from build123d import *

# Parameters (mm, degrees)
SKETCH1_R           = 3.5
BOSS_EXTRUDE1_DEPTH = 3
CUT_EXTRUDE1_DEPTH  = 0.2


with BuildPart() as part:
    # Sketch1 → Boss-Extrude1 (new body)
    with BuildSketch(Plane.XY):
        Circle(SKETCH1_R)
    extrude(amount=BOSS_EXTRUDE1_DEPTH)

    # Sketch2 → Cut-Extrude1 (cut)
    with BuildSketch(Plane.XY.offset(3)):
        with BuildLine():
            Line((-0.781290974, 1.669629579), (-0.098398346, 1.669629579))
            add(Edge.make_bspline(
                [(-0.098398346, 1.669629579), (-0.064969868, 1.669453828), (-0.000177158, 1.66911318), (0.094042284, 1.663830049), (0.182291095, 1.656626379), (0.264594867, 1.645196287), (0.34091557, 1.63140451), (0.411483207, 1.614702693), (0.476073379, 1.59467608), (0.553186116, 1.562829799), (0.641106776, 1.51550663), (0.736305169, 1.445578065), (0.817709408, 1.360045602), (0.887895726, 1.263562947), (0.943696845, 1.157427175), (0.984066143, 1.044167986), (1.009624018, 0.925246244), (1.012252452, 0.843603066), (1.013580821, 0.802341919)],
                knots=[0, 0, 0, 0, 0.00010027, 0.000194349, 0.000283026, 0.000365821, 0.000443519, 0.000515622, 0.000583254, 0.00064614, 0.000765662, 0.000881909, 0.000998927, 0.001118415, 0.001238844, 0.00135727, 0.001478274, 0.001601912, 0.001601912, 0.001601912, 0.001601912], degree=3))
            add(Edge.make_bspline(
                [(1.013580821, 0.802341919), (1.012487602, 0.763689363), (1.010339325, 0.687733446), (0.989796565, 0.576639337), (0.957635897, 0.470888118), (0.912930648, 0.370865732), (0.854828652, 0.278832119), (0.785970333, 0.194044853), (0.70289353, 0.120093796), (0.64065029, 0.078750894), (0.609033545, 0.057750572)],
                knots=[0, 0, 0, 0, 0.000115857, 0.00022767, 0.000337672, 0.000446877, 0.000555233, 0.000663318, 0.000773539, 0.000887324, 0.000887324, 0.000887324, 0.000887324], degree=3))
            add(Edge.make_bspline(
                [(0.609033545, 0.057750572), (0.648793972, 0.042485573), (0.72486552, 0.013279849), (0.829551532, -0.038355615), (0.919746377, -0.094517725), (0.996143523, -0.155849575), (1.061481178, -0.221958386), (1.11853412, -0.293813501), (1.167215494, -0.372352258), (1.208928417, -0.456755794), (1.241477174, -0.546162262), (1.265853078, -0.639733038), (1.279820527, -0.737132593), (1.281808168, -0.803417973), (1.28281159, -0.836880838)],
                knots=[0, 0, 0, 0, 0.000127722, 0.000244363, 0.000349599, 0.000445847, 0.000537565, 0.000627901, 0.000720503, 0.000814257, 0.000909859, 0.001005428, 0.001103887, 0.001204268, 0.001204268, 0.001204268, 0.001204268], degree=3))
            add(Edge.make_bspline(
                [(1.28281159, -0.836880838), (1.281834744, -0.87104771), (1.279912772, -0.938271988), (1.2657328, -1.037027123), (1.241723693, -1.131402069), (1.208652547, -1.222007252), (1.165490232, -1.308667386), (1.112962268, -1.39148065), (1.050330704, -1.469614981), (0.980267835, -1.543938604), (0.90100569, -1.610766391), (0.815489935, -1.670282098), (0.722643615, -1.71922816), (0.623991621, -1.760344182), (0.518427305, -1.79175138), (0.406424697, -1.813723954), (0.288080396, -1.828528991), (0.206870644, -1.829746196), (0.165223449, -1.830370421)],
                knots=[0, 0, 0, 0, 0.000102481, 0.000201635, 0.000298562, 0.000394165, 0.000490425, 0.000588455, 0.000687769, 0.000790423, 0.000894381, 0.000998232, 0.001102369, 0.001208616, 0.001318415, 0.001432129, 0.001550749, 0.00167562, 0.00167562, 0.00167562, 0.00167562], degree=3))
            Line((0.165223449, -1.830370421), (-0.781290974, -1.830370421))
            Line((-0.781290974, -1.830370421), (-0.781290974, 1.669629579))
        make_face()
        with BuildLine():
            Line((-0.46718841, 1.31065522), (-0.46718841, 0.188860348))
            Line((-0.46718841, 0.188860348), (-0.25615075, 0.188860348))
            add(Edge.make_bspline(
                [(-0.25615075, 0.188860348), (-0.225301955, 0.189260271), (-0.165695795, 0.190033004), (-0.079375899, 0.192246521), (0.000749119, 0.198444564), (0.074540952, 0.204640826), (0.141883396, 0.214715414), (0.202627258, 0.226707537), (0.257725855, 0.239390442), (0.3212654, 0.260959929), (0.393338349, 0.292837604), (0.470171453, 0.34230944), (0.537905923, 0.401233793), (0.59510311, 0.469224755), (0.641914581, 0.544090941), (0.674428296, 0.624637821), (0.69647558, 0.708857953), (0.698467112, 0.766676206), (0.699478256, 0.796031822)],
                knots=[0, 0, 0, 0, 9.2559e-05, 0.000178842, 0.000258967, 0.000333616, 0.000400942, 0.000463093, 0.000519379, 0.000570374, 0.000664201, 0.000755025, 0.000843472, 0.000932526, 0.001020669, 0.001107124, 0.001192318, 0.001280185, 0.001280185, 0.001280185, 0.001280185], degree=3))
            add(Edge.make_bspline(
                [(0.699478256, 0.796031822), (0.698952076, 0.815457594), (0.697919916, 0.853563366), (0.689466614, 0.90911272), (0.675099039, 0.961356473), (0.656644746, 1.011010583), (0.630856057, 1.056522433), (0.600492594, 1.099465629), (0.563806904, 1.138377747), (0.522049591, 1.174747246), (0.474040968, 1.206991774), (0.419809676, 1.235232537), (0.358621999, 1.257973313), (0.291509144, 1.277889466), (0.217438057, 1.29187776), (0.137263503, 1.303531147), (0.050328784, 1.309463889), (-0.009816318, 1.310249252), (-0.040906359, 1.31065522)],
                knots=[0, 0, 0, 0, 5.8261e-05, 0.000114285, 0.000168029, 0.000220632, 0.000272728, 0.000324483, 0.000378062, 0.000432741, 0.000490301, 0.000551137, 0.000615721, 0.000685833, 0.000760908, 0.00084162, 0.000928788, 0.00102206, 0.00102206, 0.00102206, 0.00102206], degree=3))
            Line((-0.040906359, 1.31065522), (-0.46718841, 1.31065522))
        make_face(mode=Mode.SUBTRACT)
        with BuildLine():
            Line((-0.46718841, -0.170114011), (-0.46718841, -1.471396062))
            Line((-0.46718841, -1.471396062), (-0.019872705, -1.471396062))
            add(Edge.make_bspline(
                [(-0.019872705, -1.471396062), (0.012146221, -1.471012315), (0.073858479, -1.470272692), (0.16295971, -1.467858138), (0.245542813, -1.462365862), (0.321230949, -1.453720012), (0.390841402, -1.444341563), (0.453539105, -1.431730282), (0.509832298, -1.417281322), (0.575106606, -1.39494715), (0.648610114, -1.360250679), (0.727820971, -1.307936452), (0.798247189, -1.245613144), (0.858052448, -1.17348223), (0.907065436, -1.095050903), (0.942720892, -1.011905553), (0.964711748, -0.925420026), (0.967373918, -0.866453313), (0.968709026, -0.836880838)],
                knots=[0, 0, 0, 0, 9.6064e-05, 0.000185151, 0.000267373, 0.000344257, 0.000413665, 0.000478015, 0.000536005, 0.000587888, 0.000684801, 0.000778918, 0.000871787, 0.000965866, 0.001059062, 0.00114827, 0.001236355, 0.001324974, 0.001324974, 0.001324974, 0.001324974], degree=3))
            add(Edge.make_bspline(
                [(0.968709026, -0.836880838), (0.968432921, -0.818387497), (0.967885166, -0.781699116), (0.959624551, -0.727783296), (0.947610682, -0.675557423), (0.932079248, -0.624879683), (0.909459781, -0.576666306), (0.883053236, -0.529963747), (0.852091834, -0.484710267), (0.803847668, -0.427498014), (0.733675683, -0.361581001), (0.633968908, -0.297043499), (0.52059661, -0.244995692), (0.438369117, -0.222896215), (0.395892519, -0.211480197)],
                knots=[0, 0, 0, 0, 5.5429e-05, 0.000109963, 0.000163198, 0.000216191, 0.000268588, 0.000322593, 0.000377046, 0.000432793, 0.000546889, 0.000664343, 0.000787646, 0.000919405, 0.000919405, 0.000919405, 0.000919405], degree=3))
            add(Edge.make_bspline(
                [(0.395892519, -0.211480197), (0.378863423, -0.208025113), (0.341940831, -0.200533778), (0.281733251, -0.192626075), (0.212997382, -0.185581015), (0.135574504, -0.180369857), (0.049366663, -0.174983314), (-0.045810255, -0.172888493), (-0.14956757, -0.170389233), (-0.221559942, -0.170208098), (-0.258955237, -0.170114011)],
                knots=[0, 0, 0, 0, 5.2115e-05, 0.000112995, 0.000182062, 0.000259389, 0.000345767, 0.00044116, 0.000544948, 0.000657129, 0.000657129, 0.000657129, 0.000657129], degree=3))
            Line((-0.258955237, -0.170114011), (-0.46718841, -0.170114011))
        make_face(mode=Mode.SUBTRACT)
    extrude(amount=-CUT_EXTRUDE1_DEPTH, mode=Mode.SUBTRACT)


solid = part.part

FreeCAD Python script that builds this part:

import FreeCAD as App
import Part
import Sketcher
from FreeCAD import Vector
Q = App.Units.Quantity

doc = App.newDocument("Part")
body = doc.addObject("PartDesign::Body", "Body")

# Sketch on XY plane
sketch1 = body.newObject("Sketcher::SketchObject", "Sketch")
sketch1.AttachmentSupport = (doc.getObject("XY_Plane"), [""])
sketch1.MapMode = "FlatFace"
sketch1.addGeometry(Part.Circle(Vector(0, 0, 0), Vector(0, 0, 1), 3.5), False)
sketch1.addConstraint(Sketcher.Constraint("Coincident", 0, 3, -1, 1))
sketch1.addConstraint(Sketcher.Constraint("Diameter", 0, Q("7 mm")))
pad1 = body.newObject("PartDesign::Pad", "Pad")
pad1.Profile = sketch1
pad1.Length = 3

# Sketch on XY plane
sketch2 = body.newObject("Sketcher::SketchObject", "Sketch001")
sketch2.AttachmentSupport = (doc.getObject("XY_Plane"), [""])
sketch2.MapMode = "FlatFace"
sketch2.AttachmentOffset = App.Placement(Vector(0, 0, 3), App.Rotation())
sketch2.addGeometry(Part.LineSegment(Vector(-0.098398, 1.66963, 0), Vector(-0.781291, 1.66963, 0)), False)
sketch2.addGeometry(Part.LineSegment(Vector(-0.781291, 1.66963, 0), Vector(-0.781291, -1.83037, 0)), False)
sketch2.addGeometry(Part.LineSegment(Vector(-0.781291, -1.83037, 0), Vector(0.165223, -1.83037, 0)), False)
sketch2.addGeometry(Part.BSplineCurve([Vector(1.282812, -0.836881, 0), Vector(1.281835, -0.871048, 0), Vector(1.279913, -0.938272, 0), Vector(1.265733, -1.037027, 0), Vector(1.241724, -1.131402, 0), Vector(1.208653, -1.222007, 0), Vector(1.16549, -1.308667, 0), Vector(1.112962, -1.391481, 0), Vector(1.050331, -1.469615, 0), Vector(0.980268, -1.543939, 0), Vector(0.901006, -1.610766, 0), Vector(0.81549, -1.670282, 0), Vector(0.722644, -1.719228, 0), Vector(0.623992, -1.760344, 0), Vector(0.518427, -1.791751, 0), Vector(0.406425, -1.813724, 0), Vector(0.28808, -1.828529, 0), Vector(0.206871, -1.829746, 0), Vector(0.165223, -1.83037, 0)], [4, 1, 1, 1, 1, 1, 1, 1, 1, 1, 1, 1, 1, 1, 1, 1, 4], [0, 0.000102481, 0.000201635, 0.000298562, 0.000394165, 0.000490425, 0.000588455, 0.000687769, 0.000790423, 0.000894381, 0.000998232, 0.001102369, 0.001208616, 0.001318415, 0.001432129, 0.001550749, 0.00167562], False, 3, [1, 1, 1, 1, 1, 1, 1, 1, 1, 1, 1, 1, 1, 1, 1, 1, 1, 1, 1], False), False)
sketch2.addGeometry(Part.BSplineCurve([Vector(0.609034, 0.057751, 0), Vector(0.648794, 0.042486, 0), Vector(0.724866, 0.01328, 0), Vector(0.829552, -0.038356, 0), Vector(0.919746, -0.094518, 0), Vector(0.996144, -0.15585, 0), Vector(1.061481, -0.221958, 0), Vector(1.118534, -0.293814, 0), Vector(1.167215, -0.372352, 0), Vector(1.208928, -0.456756, 0), Vector(1.241477, -0.546162, 0), Vector(1.265853, -0.639733, 0), Vector(1.279821, -0.737133, 0), Vector(1.281808, -0.803418, 0), Vector(1.282812, -0.836881, 0)], [4, 1, 1, 1, 1, 1, 1, 1, 1, 1, 1, 1, 4], [0, 0.000127722, 0.000244363, 0.000349599, 0.000445847, 0.000537565, 0.000627901, 0.000720503, 0.000814257, 0.000909859, 0.001005428, 0.001103887, 0.001204268], False, 3, [1, 1, 1, 1, 1, 1, 1, 1, 1, 1, 1, 1, 1, 1, 1], False), False)
sketch2.addGeometry(Part.BSplineCurve([Vector(1.013581, 0.802342, 0), Vector(1.012488, 0.763689, 0), Vector(1.010339, 0.687733, 0), Vector(0.989797, 0.576639, 0), Vector(0.957636, 0.470888, 0), Vector(0.912931, 0.370866, 0), Vector(0.854829, 0.278832, 0), Vector(0.78597, 0.194045, 0), Vector(0.702894, 0.120094, 0), Vector(0.64065, 0.078751, 0), Vector(0.609034, 0.057751, 0)], [4, 1, 1, 1, 1, 1, 1, 1, 4], [0, 0.000115857, 0.00022767, 0.000337672, 0.000446877, 0.000555233, 0.000663318, 0.000773539, 0.000887324], False, 3, [1, 1, 1, 1, 1, 1, 1, 1, 1, 1, 1], False), False)
sketch2.addGeometry(Part.BSplineCurve([Vector(-0.098398, 1.66963, 0), Vector(-0.06497, 1.669454, 0), Vector(-0.000177, 1.669113, 0), Vector(0.094042, 1.66383, 0), Vector(0.182291, 1.656626, 0), Vector(0.264595, 1.645196, 0), Vector(0.340916, 1.631405, 0), Vector(0.411483, 1.614703, 0), Vector(0.476073, 1.594676, 0), Vector(0.553186, 1.56283, 0), Vector(0.641107, 1.515507, 0), Vector(0.736305, 1.445578, 0), Vector(0.817709, 1.360046, 0), Vector(0.887896, 1.263563, 0), Vector(0.943697, 1.157427, 0), Vector(0.984066, 1.044168, 0), Vector(1.009624, 0.925246, 0), Vector(1.012252, 0.843603, 0), Vector(1.013581, 0.802342, 0)], [4, 1, 1, 1, 1, 1, 1, 1, 1, 1, 1, 1, 1, 1, 1, 1, 4], [0, 0.00010027, 0.000194349, 0.000283026, 0.000365821, 0.000443519, 0.000515622, 0.000583254, 0.00064614, 0.000765662, 0.000881909, 0.000998927, 0.001118415, 0.001238844, 0.00135727, 0.001478274, 0.001601912], False, 3, [1, 1, 1, 1, 1, 1, 1, 1, 1, 1, 1, 1, 1, 1, 1, 1, 1, 1, 1], False), False)
sketch2.addGeometry(Part.LineSegment(Vector(-0.467188, -0.170114, 0), Vector(-0.258955, -0.170114, 0)), False)
sketch2.addGeometry(Part.BSplineCurve([Vector(0.395893, -0.21148, 0), Vector(0.378863, -0.208025, 0), Vector(0.341941, -0.200534, 0), Vector(0.281733, -0.192626, 0), Vector(0.212997, -0.185581, 0), Vector(0.135575, -0.18037, 0), Vector(0.049367, -0.174983, 0), Vector(-0.04581, -0.172888, 0), Vector(-0.149568, -0.170389, 0), Vector(-0.22156, -0.170208, 0), Vector(-0.258955, -0.170114, 0)], [4, 1, 1, 1, 1, 1, 1, 1, 4], [0, 0.000052115, 0.000112995, 0.000182062, 0.000259389, 0.000345767, 0.00044116, 0.000544948, 0.000657129], False, 3, [1, 1, 1, 1, 1, 1, 1, 1, 1, 1, 1], False), False)
sketch2.addGeometry(Part.BSplineCurve([Vector(0.968709, -0.836881, 0), Vector(0.968433, -0.818387, 0), Vector(0.967885, -0.781699, 0), Vector(0.959625, -0.727783, 0), Vector(0.947611, -0.675557, 0), Vector(0.932079, -0.62488, 0), Vector(0.90946, -0.576666, 0), Vector(0.883053, -0.529964, 0), Vector(0.852092, -0.48471, 0), Vector(0.803848, -0.427498, 0), Vector(0.733676, -0.361581, 0), Vector(0.633969, -0.297043, 0), Vector(0.520597, -0.244996, 0), Vector(0.438369, -0.222896, 0), Vector(0.395893, -0.21148, 0)], [4, 1, 1, 1, 1, 1, 1, 1, 1, 1, 1, 1, 4], [0, 0.000055429, 0.000109963, 0.000163198, 0.000216191, 0.000268588, 0.000322593, 0.000377046, 0.000432793, 0.000546889, 0.000664343, 0.000787646, 0.000919405], False, 3, [1, 1, 1, 1, 1, 1, 1, 1, 1, 1, 1, 1, 1, 1, 1], False), False)
sketch2.addGeometry(Part.BSplineCurve([Vector(-0.019873, -1.471396, 0), Vector(0.012146, -1.471012, 0), Vector(0.073858, -1.470273, 0), Vector(0.16296, -1.467858, 0), Vector(0.245543, -1.462366, 0), Vector(0.321231, -1.45372, 0), Vector(0.390841, -1.444342, 0), Vector(0.453539, -1.43173, 0), Vector(0.509832, -1.417281, 0), Vector(0.575107, -1.394947, 0), Vector(0.64861, -1.360251, 0), Vector(0.727821, -1.307936, 0), Vector(0.798247, -1.245613, 0), Vector(0.858052, -1.173482, 0), Vector(0.907065, -1.095051, 0), Vector(0.942721, -1.011906, 0), Vector(0.964712, -0.92542, 0), Vector(0.967374, -0.866453, 0), Vector(0.968709, -0.836881, 0)], [4, 1, 1, 1, 1, 1, 1, 1, 1, 1, 1, 1, 1, 1, 1, 1, 4], [0, 0.000096064, 0.000185151, 0.000267373, 0.000344257, 0.000413665, 0.000478015, 0.000536005, 0.000587888, 0.000684801, 0.000778918, 0.000871787, 0.000965866, 0.001059062, 0.00114827, 0.001236355, 0.001324974], False, 3, [1, 1, 1, 1, 1, 1, 1, 1, 1, 1, 1, 1, 1, 1, 1, 1, 1, 1, 1], False), False)
sketch2.addGeometry(Part.LineSegment(Vector(-0.019873, -1.471396, 0), Vector(-0.467188, -1.471396, 0)), False)
sketch2.addGeometry(Part.LineSegment(Vector(-0.467188, -1.471396, 0), Vector(-0.467188, -0.170114, 0)), False)
sketch2.addGeometry(Part.LineSegment(Vector(-0.467188, 1.310655, 0), Vector(-0.040906, 1.310655, 0)), False)
sketch2.addGeometry(Part.BSplineCurve([Vector(0.699478, 0.796032, 0), Vector(0.698952, 0.815458, 0), Vector(0.69792, 0.853563, 0), Vector(0.689467, 0.909113, 0), Vector(0.675099, 0.961356, 0), Vector(0.656645, 1.011011, 0), Vector(0.630856, 1.056522, 0), Vector(0.600493, 1.099466, 0), Vector(0.563807, 1.138378, 0), Vector(0.52205, 1.174747, 0), Vector(0.474041, 1.206992, 0), Vector(0.41981, 1.235233, 0), Vector(0.358622, 1.257973, 0), Vector(0.291509, 1.277889, 0), Vector(0.217438, 1.291878, 0), Vector(0.137264, 1.303531, 0), Vector(0.050329, 1.309464, 0), Vector(-0.009816, 1.310249, 0), Vector(-0.040906, 1.310655, 0)], [4, 1, 1, 1, 1, 1, 1, 1, 1, 1, 1, 1, 1, 1, 1, 1, 4], [0, 0.000058261, 0.000114285, 0.000168029, 0.000220632, 0.000272728, 0.000324483, 0.000378062, 0.000432741, 0.000490301, 0.000551137, 0.000615721, 0.000685833, 0.000760908, 0.00084162, 0.000928788, 0.00102206], False, 3, [1, 1, 1, 1, 1, 1, 1, 1, 1, 1, 1, 1, 1, 1, 1, 1, 1, 1, 1], False), False)
sketch2.addGeometry(Part.BSplineCurve([Vector(-0.256151, 0.18886, 0), Vector(-0.225302, 0.18926, 0), Vector(-0.165696, 0.190033, 0), Vector(-0.079376, 0.192247, 0), Vector(0.000749, 0.198445, 0), Vector(0.074541, 0.204641, 0), Vector(0.141883, 0.214715, 0), Vector(0.202627, 0.226708, 0), Vector(0.257726, 0.23939, 0), Vector(0.321265, 0.26096, 0), Vector(0.393338, 0.292838, 0), Vector(0.470171, 0.342309, 0), Vector(0.537906, 0.401234, 0), Vector(0.595103, 0.469225, 0), Vector(0.641915, 0.544091, 0), Vector(0.674428, 0.624638, 0), Vector(0.696476, 0.708858, 0), Vector(0.698467, 0.766676, 0), Vector(0.699478, 0.796032, 0)], [4, 1, 1, 1, 1, 1, 1, 1, 1, 1, 1, 1, 1, 1, 1, 1, 4], [0, 0.000092559, 0.000178842, 0.000258967, 0.000333616, 0.000400942, 0.000463093, 0.000519379, 0.000570374, 0.000664201, 0.000755025, 0.000843472, 0.000932526, 0.001020669, 0.001107124, 0.001192318, 0.001280185], False, 3, [1, 1, 1, 1, 1, 1, 1, 1, 1, 1, 1, 1, 1, 1, 1, 1, 1, 1, 1], False), False)
sketch2.addGeometry(Part.LineSegment(Vector(-0.256151, 0.18886, 0), Vector(-0.467188, 0.18886, 0)), False)
sketch2.addGeometry(Part.LineSegment(Vector(-0.467188, 0.18886, 0), Vector(-0.467188, 1.310655, 0)), False)
sketch2.addConstraint(Sketcher.Constraint("Block", 3))
sketch2.addConstraint(Sketcher.Constraint("Block", 4))
sketch2.addConstraint(Sketcher.Constraint("Block", 5))
sketch2.addConstraint(Sketcher.Constraint("Block", 6))
sketch2.addConstraint(Sketcher.Constraint("Block", 8))
sketch2.addConstraint(Sketcher.Constraint("Block", 9))
sketch2.addConstraint(Sketcher.Constraint("Block", 10))
sketch2.addConstraint(Sketcher.Constraint("Block", 14))
sketch2.addConstraint(Sketcher.Constraint("Block", 15))
sketch2.addConstraint(Sketcher.Constraint("Coincident", 0, 2, 1, 1))
sketch2.addConstraint(Sketcher.Constraint("Coincident", 1, 2, 2, 1))
sketch2.addConstraint(Sketcher.Constraint("Coincident", 2, 2, 3, 2))
sketch2.addConstraint(Sketcher.Constraint("Coincident", 6, 1, 0, 1))
sketch2.addConstraint(Sketcher.Constraint("Coincident", 7, 2, 8, 2))
sketch2.addConstraint(Sketcher.Constraint("Coincident", 10, 1, 11, 1))
sketch2.addConstraint(Sketcher.Constraint("Coincident", 11, 2, 12, 1))
sketch2.addConstraint(Sketcher.Constraint("Coincident", 12, 2, 7, 1))
sketch2.addConstraint(Sketcher.Constraint("Coincident", 13, 2, 14, 2))
sketch2.addConstraint(Sketcher.Constraint("Coincident", 15, 1, 16, 1))
sketch2.addConstraint(Sketcher.Constraint("Coincident", 16, 2, 17, 1))
sketch2.addConstraint(Sketcher.Constraint("Coincident", 17, 2, 13, 1))
sketch2.addConstraint(Sketcher.Constraint("Horizontal", 0))
sketch2.addConstraint(Sketcher.Constraint("Vertical", 1))
sketch2.addConstraint(Sketcher.Constraint("Horizontal", 2))
sketch2.addConstraint(Sketcher.Constraint("Horizontal", 7))
sketch2.addConstraint(Sketcher.Constraint("Horizontal", 11))
sketch2.addConstraint(Sketcher.Constraint("Vertical", 12))
sketch2.addConstraint(Sketcher.Constraint("Horizontal", 13))
sketch2.addConstraint(Sketcher.Constraint("Horizontal", 16))
sketch2.addConstraint(Sketcher.Constraint("Vertical", 17))
sketch2.addConstraint(Sketcher.Constraint("Vertical", 12, 2, 16, 2))
sketch2.addConstraint(Sketcher.Constraint("DistanceX", 0, 2, 0, 1, Q("0.682893 mm")))
sketch2.addConstraint(Sketcher.Constraint("DistanceX", 7, 1, 7, 2, Q("0.208233 mm")))
pocket1 = body.newObject("PartDesign::Pocket", "Pocket")
pocket1.Profile = sketch2
pocket1.Length = 0.2

doc.recompute()
